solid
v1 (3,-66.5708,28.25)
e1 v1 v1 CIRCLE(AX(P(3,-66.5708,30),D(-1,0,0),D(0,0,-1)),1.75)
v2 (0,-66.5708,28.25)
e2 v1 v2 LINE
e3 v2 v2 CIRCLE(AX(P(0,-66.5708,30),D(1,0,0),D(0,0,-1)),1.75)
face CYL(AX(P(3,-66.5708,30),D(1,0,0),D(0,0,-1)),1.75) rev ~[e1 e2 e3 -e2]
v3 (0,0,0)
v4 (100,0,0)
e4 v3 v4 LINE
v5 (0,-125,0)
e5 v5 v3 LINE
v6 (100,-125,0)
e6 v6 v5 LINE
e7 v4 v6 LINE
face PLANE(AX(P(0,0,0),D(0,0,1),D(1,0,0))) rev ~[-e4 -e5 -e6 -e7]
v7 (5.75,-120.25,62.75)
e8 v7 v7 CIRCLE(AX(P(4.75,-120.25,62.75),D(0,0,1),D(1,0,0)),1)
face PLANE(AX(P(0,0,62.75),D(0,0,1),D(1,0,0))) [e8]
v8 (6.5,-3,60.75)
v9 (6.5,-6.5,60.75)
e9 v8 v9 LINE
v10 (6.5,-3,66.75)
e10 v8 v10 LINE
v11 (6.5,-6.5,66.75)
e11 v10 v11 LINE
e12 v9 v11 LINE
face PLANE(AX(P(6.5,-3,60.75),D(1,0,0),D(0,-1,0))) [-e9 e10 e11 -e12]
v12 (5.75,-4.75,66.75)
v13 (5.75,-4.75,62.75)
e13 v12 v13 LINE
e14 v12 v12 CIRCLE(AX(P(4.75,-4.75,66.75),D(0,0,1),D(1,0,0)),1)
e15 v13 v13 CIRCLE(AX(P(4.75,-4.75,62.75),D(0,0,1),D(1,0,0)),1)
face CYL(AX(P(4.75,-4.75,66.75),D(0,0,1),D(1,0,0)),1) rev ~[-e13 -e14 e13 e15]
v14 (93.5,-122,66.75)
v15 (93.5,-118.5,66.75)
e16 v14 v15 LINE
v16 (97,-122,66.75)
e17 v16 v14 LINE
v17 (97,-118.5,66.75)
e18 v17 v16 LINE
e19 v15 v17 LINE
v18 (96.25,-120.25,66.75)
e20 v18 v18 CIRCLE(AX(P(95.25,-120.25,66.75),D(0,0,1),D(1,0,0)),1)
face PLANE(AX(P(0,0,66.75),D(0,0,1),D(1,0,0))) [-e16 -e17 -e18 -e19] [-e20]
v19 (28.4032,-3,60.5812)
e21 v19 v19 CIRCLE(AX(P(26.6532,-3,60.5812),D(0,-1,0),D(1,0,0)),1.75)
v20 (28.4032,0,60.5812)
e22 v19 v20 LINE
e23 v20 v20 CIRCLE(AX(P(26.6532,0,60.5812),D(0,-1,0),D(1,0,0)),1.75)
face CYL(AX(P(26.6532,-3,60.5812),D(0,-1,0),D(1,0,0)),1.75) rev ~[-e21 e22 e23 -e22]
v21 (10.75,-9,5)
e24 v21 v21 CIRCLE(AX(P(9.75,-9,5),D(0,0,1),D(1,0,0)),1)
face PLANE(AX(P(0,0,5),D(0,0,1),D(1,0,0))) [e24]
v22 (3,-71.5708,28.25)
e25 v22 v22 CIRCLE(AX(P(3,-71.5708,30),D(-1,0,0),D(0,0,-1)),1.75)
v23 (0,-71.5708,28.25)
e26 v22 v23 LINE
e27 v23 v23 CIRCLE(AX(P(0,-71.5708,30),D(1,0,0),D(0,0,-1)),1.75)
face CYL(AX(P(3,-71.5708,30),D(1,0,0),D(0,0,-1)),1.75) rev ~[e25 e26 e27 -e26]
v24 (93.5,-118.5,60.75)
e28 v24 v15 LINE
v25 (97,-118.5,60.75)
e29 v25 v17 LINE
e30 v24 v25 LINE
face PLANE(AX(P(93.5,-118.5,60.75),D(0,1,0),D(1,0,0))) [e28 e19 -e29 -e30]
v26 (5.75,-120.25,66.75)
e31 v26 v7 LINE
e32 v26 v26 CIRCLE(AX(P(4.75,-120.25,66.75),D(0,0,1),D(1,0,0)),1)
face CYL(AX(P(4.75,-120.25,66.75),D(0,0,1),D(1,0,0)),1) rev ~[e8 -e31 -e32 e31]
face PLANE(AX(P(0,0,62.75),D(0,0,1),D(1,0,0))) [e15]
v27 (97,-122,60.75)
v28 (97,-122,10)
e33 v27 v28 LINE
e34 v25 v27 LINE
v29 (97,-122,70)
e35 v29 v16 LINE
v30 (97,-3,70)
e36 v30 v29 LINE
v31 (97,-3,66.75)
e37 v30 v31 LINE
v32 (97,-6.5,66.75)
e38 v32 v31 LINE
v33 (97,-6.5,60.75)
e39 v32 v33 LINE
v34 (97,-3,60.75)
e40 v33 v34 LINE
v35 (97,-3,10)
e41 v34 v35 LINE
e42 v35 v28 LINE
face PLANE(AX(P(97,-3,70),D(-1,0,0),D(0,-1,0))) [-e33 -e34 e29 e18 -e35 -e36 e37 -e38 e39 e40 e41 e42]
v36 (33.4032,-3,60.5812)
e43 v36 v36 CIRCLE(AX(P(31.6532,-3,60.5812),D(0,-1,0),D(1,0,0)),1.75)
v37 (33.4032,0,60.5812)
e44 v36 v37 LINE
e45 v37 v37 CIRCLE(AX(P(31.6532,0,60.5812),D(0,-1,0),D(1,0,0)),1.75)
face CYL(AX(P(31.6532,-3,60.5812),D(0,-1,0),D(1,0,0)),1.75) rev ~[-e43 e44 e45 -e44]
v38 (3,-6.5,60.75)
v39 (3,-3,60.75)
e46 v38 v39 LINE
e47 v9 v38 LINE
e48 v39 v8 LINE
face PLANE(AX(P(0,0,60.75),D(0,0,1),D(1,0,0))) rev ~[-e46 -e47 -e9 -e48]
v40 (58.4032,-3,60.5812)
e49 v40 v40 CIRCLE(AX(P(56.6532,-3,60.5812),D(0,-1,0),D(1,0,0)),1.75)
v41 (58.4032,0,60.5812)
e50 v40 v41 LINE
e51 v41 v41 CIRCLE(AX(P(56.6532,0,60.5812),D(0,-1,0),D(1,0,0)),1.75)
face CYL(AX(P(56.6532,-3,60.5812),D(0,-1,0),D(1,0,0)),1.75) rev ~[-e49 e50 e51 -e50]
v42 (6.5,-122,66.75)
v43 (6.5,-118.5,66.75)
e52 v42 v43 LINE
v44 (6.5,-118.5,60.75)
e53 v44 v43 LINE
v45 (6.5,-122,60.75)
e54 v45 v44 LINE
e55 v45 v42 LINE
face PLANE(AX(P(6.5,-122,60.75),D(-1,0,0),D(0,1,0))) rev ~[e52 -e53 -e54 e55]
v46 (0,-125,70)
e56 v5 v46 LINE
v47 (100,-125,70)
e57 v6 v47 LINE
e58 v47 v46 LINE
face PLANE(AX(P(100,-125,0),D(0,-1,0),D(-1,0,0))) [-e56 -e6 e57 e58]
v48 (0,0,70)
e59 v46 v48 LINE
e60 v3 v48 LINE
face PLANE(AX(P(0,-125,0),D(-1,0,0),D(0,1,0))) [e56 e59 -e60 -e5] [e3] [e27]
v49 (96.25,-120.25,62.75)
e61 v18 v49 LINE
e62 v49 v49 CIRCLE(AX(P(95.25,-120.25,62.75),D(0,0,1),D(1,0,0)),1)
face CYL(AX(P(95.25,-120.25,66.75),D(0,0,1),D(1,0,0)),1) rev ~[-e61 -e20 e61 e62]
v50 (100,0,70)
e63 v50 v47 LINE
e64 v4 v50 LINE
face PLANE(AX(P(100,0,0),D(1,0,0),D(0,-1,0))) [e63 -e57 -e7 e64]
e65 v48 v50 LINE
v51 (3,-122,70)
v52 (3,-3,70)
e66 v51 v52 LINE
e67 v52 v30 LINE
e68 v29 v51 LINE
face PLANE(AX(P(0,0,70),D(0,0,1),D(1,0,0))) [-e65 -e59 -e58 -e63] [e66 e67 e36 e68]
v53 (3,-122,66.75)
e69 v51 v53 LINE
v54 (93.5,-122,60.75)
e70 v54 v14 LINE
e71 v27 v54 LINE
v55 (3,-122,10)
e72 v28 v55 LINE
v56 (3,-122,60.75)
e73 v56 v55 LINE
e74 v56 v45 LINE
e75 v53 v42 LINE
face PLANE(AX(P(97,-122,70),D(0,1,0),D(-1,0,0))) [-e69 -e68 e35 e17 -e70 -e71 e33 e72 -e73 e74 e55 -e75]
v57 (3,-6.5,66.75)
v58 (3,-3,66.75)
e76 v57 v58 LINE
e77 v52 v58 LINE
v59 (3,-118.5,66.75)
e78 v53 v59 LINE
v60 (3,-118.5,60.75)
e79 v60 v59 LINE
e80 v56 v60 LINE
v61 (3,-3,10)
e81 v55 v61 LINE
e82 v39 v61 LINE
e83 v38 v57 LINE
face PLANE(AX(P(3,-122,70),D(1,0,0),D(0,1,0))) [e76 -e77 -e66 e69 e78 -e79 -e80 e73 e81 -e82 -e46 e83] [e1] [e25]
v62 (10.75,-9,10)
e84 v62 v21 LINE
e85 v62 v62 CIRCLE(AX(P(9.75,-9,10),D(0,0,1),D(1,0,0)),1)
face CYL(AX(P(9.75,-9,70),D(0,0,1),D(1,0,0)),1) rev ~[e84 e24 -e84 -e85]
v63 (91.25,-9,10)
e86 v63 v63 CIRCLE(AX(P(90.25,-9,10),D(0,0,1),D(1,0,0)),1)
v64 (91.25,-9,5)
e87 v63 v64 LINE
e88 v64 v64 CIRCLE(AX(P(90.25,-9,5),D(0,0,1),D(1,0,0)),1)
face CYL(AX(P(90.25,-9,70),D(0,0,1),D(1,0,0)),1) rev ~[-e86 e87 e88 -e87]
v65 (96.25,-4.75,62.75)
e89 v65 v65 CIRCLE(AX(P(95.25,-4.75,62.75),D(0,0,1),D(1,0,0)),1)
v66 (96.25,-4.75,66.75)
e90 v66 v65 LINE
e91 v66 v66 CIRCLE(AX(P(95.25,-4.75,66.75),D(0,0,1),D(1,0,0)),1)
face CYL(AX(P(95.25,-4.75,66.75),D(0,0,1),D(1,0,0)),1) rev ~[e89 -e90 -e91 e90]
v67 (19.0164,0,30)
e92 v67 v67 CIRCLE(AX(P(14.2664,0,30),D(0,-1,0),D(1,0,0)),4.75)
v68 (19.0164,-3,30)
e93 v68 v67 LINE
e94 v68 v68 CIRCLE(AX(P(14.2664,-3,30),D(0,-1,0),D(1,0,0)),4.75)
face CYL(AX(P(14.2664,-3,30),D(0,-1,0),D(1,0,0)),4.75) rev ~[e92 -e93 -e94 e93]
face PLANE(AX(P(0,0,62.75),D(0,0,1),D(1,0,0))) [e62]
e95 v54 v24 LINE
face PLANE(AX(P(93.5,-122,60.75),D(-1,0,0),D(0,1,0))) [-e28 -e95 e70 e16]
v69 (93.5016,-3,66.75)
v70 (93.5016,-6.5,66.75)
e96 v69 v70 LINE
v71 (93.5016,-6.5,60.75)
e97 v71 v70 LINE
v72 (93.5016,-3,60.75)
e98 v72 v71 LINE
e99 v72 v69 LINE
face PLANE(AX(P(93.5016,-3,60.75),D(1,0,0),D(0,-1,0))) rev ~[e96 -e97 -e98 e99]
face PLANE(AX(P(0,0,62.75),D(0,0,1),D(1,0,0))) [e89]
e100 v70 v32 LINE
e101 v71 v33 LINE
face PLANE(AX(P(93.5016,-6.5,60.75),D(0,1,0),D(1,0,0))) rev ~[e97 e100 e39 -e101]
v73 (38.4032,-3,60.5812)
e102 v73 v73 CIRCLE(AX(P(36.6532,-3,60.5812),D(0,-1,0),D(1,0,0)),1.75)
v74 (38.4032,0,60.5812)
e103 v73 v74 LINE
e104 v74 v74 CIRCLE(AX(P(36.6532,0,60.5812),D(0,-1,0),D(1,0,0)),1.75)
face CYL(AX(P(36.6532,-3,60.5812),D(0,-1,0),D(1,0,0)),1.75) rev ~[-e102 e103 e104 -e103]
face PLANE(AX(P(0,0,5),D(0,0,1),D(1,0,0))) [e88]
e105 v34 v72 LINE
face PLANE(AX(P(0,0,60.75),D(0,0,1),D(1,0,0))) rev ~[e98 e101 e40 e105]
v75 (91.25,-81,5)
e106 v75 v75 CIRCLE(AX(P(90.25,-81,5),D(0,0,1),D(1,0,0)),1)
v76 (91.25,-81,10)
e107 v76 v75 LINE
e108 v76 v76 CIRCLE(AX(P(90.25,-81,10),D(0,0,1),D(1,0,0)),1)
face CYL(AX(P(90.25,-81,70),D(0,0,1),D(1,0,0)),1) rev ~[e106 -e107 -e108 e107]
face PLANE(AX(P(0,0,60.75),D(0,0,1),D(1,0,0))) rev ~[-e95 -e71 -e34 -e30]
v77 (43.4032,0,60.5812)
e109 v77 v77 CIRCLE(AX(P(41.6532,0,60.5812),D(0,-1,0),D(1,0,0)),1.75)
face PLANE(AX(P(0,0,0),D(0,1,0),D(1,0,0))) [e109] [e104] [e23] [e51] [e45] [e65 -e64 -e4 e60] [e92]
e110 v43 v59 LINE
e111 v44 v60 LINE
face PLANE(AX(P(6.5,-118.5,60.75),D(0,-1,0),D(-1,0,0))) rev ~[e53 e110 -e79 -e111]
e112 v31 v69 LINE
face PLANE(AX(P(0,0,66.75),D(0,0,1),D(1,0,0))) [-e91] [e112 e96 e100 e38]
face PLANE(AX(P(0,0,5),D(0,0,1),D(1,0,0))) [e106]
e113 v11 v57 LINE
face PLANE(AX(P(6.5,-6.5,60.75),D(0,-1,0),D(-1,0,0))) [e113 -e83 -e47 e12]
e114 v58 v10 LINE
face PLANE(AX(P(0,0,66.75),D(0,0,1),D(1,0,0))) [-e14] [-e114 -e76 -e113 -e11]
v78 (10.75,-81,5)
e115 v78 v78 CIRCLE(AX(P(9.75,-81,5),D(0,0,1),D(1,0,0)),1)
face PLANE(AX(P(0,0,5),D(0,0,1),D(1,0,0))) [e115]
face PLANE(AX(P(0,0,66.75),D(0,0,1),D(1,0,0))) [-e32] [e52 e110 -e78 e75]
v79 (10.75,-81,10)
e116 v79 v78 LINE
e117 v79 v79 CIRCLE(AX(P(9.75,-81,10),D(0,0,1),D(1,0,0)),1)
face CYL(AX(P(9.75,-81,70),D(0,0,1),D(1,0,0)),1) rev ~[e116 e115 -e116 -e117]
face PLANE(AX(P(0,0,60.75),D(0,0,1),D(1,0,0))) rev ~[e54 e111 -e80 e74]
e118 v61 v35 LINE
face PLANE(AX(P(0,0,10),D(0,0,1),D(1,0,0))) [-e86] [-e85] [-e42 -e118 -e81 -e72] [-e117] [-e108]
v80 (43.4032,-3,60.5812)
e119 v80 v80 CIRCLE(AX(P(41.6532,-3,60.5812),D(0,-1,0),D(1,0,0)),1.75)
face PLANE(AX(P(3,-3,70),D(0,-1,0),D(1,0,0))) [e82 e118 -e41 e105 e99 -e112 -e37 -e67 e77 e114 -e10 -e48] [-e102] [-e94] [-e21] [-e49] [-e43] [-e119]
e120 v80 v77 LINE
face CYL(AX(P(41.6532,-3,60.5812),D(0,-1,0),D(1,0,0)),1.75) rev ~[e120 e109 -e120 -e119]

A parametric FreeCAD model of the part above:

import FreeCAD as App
import Part
import Sketcher


def add_polygon(sketch, points):
    """Adds a closed chain of lines whose ends are joined by coincident constraints."""
    first, n = sketch.GeometryCount, len(points)
    for a, b in zip(points, points[1:] + points[:1]):
        sketch.addGeometry(Part.LineSegment(App.Vector(*a, 0), App.Vector(*b, 0)), False)
    for i in range(n):
        sketch.addConstraint(Sketcher.Constraint("Coincident", first + i, 2, first + (i + 1) % n, 1))

doc = App.newDocument("Part")
body = doc.addObject("PartDesign::Body", "Body")

sketch1 = body.newObject("Sketcher::SketchObject", "Sketch")
sketch1.AttachmentSupport = (doc.getObject("XY_Plane"), [""])
sketch1.MapMode = "FlatFace"
add_polygon(sketch1, [(100, 0), (0, 0), (0, -125), (100, -125)])
sketch1.addConstraint(Sketcher.Constraint("Horizontal", 0))
sketch1.addConstraint(Sketcher.Constraint("Vertical", 1))
sketch1.addConstraint(Sketcher.Constraint("Horizontal", 2))
sketch1.addConstraint(Sketcher.Constraint("Vertical", 3))
sketch1.addConstraint(Sketcher.Constraint("Coincident", 0, 2, -1, 1))
sketch1.addConstraint(Sketcher.Constraint("DistanceX", 0, 2, 0, 1, 100.0))
sketch1.addConstraint(Sketcher.Constraint("DistanceY", 1, 2, 1, 1, 125.0))
pad1 = body.newObject("PartDesign::Pad", "Pad")
pad1.Profile = sketch1
pad1.Length = 70

sketch2 = body.newObject("Sketcher::SketchObject", "Sketch001")
sketch2.AttachmentSupport = (doc.getObject("XY_Plane"), [""])
sketch2.MapMode = "FlatFace"
sketch2.AttachmentOffset = App.Placement(App.Vector(0, 0, 70), App.Rotation())
add_polygon(sketch2, [(3, -122), (97, -122), (97, -3), (3, -3)])
sketch2.addConstraint(Sketcher.Constraint("Horizontal", 0))
sketch2.addConstraint(Sketcher.Constraint("Vertical", 1))
sketch2.addConstraint(Sketcher.Constraint("Horizontal", 2))
sketch2.addConstraint(Sketcher.Constraint("Vertical", 3))
sketch2.addConstraint(Sketcher.Constraint("DistanceY", 1, 2, -1, 1, 3.0))
sketch2.addConstraint(Sketcher.Constraint("DistanceX", -1, 1, 2, 2, 3.0))
sketch2.addConstraint(Sketcher.Constraint("DistanceX", 0, 1, 0, 2, 94.0))
sketch2.addConstraint(Sketcher.Constraint("DistanceY", 1, 1, 1, 2, 119.0))
pocket1 = body.newObject("PartDesign::Pocket", "Pocket")
pocket1.Profile = sketch2
pocket1.Length = 60

sketch3 = body.newObject("Sketcher::SketchObject", "Sketch002")
sketch3.AttachmentSupport = (doc.getObject("XY_Plane"), [""])
sketch3.MapMode = "FlatFace"
sketch3.AttachmentOffset = App.Placement(App.Vector(0, 0, 70), App.Rotation())
sketch3.addGeometry(Part.Circle(App.Vector(9.75, -9, 0), App.Vector(0, 0, 1), 1), False)
sketch3.addGeometry(Part.Circle(App.Vector(90.25, -9, 0), App.Vector(0, 0, 1), 1), False)
sketch3.addGeometry(Part.Circle(App.Vector(90.25, -81, 0), App.Vector(0, 0, 1), 1), False)
sketch3.addGeometry(Part.Circle(App.Vector(9.75, -81, 0), App.Vector(0, 0, 1), 1), False)
sketch3.addConstraint(Sketcher.Constraint("Equal", 0, 1))
sketch3.addConstraint(Sketcher.Constraint("Equal", 1, 2))
sketch3.addConstraint(Sketcher.Constraint("Equal", 2, 3))
sketch3.addConstraint(Sketcher.Constraint("Horizontal", 0, 3, 1, 3))
sketch3.addConstraint(Sketcher.Constraint("Horizontal", 2, 3, 3, 3))
sketch3.addConstraint(Sketcher.Constraint("Vertical", 1, 3, 2, 3))
sketch3.addConstraint(Sketcher.Constraint("Vertical", 0, 3, 3, 3))
sketch3.addConstraint(Sketcher.Constraint("Diameter", 0, 2.0))
sketch3.addConstraint(Sketcher.Constraint("DistanceY", 0, 3, -1, 1, 9.0))
sketch3.addConstraint(Sketcher.Constraint("DistanceY", 2, 3, -1, 1, 81.0))
sketch3.addConstraint(Sketcher.Constraint("DistanceX", 0, 3, 1, 3, 80.5))
sketch3.addConstraint(Sketcher.Constraint("DistanceX", -1, 1, 0, 3, 9.75))
pocket2 = body.newObject("PartDesign::Pocket", "Pocket001")
pocket2.Profile = sketch3
pocket2.Length = 65

sketch4 = body.newObject("Sketcher::SketchObject", "Sketch003")
sketch4.AttachmentSupport = (doc.getObject("XY_Plane"), [""])
sketch4.MapMode = "FlatFace"
sketch4.AttachmentOffset = App.Placement(App.Vector(0, 0, 60.75), App.Rotation())
add_polygon(sketch4, [(6.5, -118.5), (3, -118.5), (3, -122), (6.5, -122)])
add_polygon(sketch4, [(6.5, -3), (3, -3), (3, -6.5), (6.5, -6.5)])
add_polygon(sketch4, [(97.0016, -6.5), (97.0016, -3), (93.5016, -3), (93.5016, -6.5)])
add_polygon(sketch4, [(97, -122), (97, -118.5), (93.5, -118.5), (93.5, -122)])
sketch4.addConstraint(Sketcher.Constraint("Horizontal", 0))
sketch4.addConstraint(Sketcher.Constraint("Vertical", 1))
sketch4.addConstraint(Sketcher.Constraint("Horizontal", 2))
sketch4.addConstraint(Sketcher.Constraint("Vertical", 3))
sketch4.addConstraint(Sketcher.Constraint("Horizontal", 4))
sketch4.addConstraint(Sketcher.Constraint("Vertical", 5))
sketch4.addConstraint(Sketcher.Constraint("Horizontal", 6))
sketch4.addConstraint(Sketcher.Constraint("Vertical", 7))
sketch4.addConstraint(Sketcher.Constraint("Vertical", 8))
sketch4.addConstraint(Sketcher.Constraint("Horizontal", 9))
sketch4.addConstraint(Sketcher.Constraint("Vertical", 10))
sketch4.addConstraint(Sketcher.Constraint("Horizontal", 11))
sketch4.addConstraint(Sketcher.Constraint("Vertical", 12))
sketch4.addConstraint(Sketcher.Constraint("Horizontal", 13))
sketch4.addConstraint(Sketcher.Constraint("Vertical", 14))
sketch4.addConstraint(Sketcher.Constraint("Horizontal", 15))
sketch4.addConstraint(Sketcher.Constraint("Horizontal", 7, 2, 8, 2))
sketch4.addConstraint(Sketcher.Constraint("Horizontal", 6, 2, 10, 2))
sketch4.addConstraint(Sketcher.Constraint("Horizontal", 3, 2, 12, 2))
sketch4.addConstraint(Sketcher.Constraint("Horizontal", 2, 2, 14, 2))
sketch4.addConstraint(Sketcher.Constraint("Vertical", 1, 2, 4, 2))
sketch4.addConstraint(Sketcher.Constraint("Vertical", 3, 2, 6, 2))
sketch4.addConstraint(Sketcher.Constraint("Equal", 6, 9))
sketch4.addConstraint(Sketcher.Constraint("Equal", 11, 13))
sketch4.addConstraint(Sketcher.Constraint("Equal", 15, 1))
sketch4.addConstraint(Sketcher.Constraint("Equal", 3, 5))
sketch4.addConstraint(Sketcher.Constraint("DistanceX", 0, 2, 0, 1, 3.5))
sketch4.addConstraint(Sketcher.Constraint("DistanceX", -1, 1, 0, 2, 3.0))
sketch4.addConstraint(Sketcher.Constraint("DistanceY", 1, 2, -1, 1, 122.0))
sketch4.addConstraint(Sketcher.Constraint("DistanceY", 4, 2, -1, 1, 3.0))
sketch4.addConstraint(Sketcher.Constraint("DistanceX", -1, 1, 12, 2, 97.0))
sketch4.addConstraint(Sketcher.Constraint("DistanceX", -1, 1, 8, 2, 97.0016))
pad2 = body.newObject("PartDesign::Pad", "Pad001")
pad2.Profile = sketch4
pad2.Length = 6

sketch5 = body.newObject("Sketcher::SketchObject", "Sketch004")
sketch5.AttachmentSupport = (doc.getObject("XY_Plane"), [""])
sketch5.MapMode = "FlatFace"
sketch5.AttachmentOffset = App.Placement(App.Vector(0, 0, 66.75), App.Rotation())
sketch5.addGeometry(Part.Circle(App.Vector(4.75, -120.25, 0), App.Vector(0, 0, 1), 1), False)
sketch5.addGeometry(Part.Circle(App.Vector(95.25, -120.25, 0), App.Vector(0, 0, 1), 1), False)
sketch5.addGeometry(Part.Circle(App.Vector(95.25, -4.75, 0), App.Vector(0, 0, 1), 1), False)
sketch5.addGeometry(Part.Circle(App.Vector(4.75, -4.75, 0), App.Vector(0, 0, 1), 1), False)
sketch5.addConstraint(Sketcher.Constraint("Equal", 0, 1))
sketch5.addConstraint(Sketcher.Constraint("Equal", 1, 2))
sketch5.addConstraint(Sketcher.Constraint("Equal", 2, 3))
sketch5.addConstraint(Sketcher.Constraint("Horizontal", 0, 3, 1, 3))
sketch5.addConstraint(Sketcher.Constraint("Horizontal", 2, 3, 3, 3))
sketch5.addConstraint(Sketcher.Constraint("Vertical", 1, 3, 2, 3))
sketch5.addConstraint(Sketcher.Constraint("Vertical", 0, 3, 3, 3))
sketch5.addConstraint(Sketcher.Constraint("Diameter", 0, 2.0))
sketch5.addConstraint(Sketcher.Constraint("DistanceX", 0, 3, 1, 3, 90.5))
sketch5.addConstraint(Sketcher.Constraint("DistanceY", 1, 3, 2, 3, 115.5))
sketch5.addConstraint(Sketcher.Constraint("DistanceX", -1, 1, 0, 3, 4.75))
sketch5.addConstraint(Sketcher.Constraint("DistanceY", 0, 3, -1, 1, 120.25))
pocket3 = body.newObject("PartDesign::Pocket", "Pocket002")
pocket3.Profile = sketch5
pocket3.Length = 4

sketch6 = body.newObject("Sketcher::SketchObject", "Sketch005")
sketch6.AttachmentSupport = (doc.getObject("YZ_Plane"), [""])
sketch6.MapMode = "FlatFace"
sketch6.AttachmentOffset = App.Placement(App.Vector(0, 0, 3), App.Rotation())
sketch6.addGeometry(Part.Circle(App.Vector(-71.5708, 30, 0), App.Vector(0, 0, 1), 1.75), False)
sketch6.addGeometry(Part.Circle(App.Vector(-66.5708, 30, 0), App.Vector(0, 0, 1), 1.75), False)
sketch6.addConstraint(Sketcher.Constraint("Equal", 0, 1))
sketch6.addConstraint(Sketcher.Constraint("Horizontal", 0, 3, 1, 3))
sketch6.addConstraint(Sketcher.Constraint("Diameter", 0, 3.5))
sketch6.addConstraint(Sketcher.Constraint("DistanceX", 0, 3, 1, 3, 5.0))
sketch6.addConstraint(Sketcher.Constraint("DistanceY", -1, 1, 0, 3, 30.0))
sketch6.addConstraint(Sketcher.Constraint("DistanceX", 0, 3, -1, 1, 71.5708))
pocket4 = body.newObject("PartDesign::Pocket", "Pocket003")
pocket4.Profile = sketch6
pocket4.Length = 10

sketch7 = body.newObject("Sketcher::SketchObject", "Sketch006")
sketch7.AttachmentSupport = (doc.getObject("XZ_Plane"), [""])
sketch7.MapMode = "FlatFace"
sketch7.AttachmentOffset = App.Placement(App.Vector(0, 0, 3), App.Rotation())
sketch7.addGeometry(Part.Circle(App.Vector(26.6532, 60.5812, 0), App.Vector(0, 0, 1), 1.75), False)
sketch7.addGeometry(Part.Circle(App.Vector(31.6532, 60.5812, 0), App.Vector(0, 0, 1), 1.75), False)
sketch7.addGeometry(Part.Circle(App.Vector(36.6532, 60.5812, 0), App.Vector(0, 0, 1), 1.75), False)
sketch7.addGeometry(Part.Circle(App.Vector(41.6532, 60.5812, 0), App.Vector(0, 0, 1), 1.75), False)
sketch7.addGeometry(Part.Circle(App.Vector(56.6532, 60.5812, 0), App.Vector(0, 0, 1), 1.75), False)
sketch7.addConstraint(Sketcher.Constraint("Equal", 0, 1))
sketch7.addConstraint(Sketcher.Constraint("Equal", 1, 2))
sketch7.addConstraint(Sketcher.Constraint("Equal", 2, 3))
sketch7.addConstraint(Sketcher.Constraint("Equal", 3, 4))
sketch7.addConstraint(Sketcher.Constraint("Horizontal", 0, 3, 1, 3))
sketch7.addConstraint(Sketcher.Constraint("Horizontal", 1, 3, 2, 3))
sketch7.addConstraint(Sketcher.Constraint("Horizontal", 2, 3, 3, 3))
sketch7.addConstraint(Sketcher.Constraint("Horizontal", 3, 3, 4, 3))
sketch7.addConstraint(Sketcher.Constraint("Diameter", 0, 3.5))
sketch7.addConstraint(Sketcher.Constraint("DistanceX", 0, 3, 1, 3, 5.0))
sketch7.addConstraint(Sketcher.Constraint("DistanceX", 1, 3, 2, 3, 5.0))
sketch7.addConstraint(Sketcher.Constraint("DistanceX", 2, 3, 3, 3, 5.0))
sketch7.addConstraint(Sketcher.Constraint("DistanceX", 3, 3, 4, 3, 15.0))
sketch7.addConstraint(Sketcher.Constraint("DistanceX", -1, 1, 0, 3, 26.6532))
sketch7.addConstraint(Sketcher.Constraint("DistanceY", -1, 1, 0, 3, 60.5812))
pocket5 = body.newObject("PartDesign::Pocket", "Pocket004")
pocket5.Profile = sketch7
pocket5.Length = 10

sketch8 = body.newObject("Sketcher::SketchObject", "Sketch007")
sketch8.AttachmentSupport = (doc.getObject("XZ_Plane"), [""])
sketch8.MapMode = "FlatFace"
sketch8.AttachmentOffset = App.Placement(App.Vector(0, 0, 3), App.Rotation())
sketch8.addGeometry(Part.Circle(App.Vector(14.2664, 30, 0), App.Vector(0, 0, 1), 4.75), False)
sketch8.addConstraint(Sketcher.Constraint("Diameter", 0, 9.5))
sketch8.addConstraint(Sketcher.Constraint("DistanceY", -1, 1, 0, 3, 30.0))
sketch8.addConstraint(Sketcher.Constraint("DistanceX", -1, 1, 0, 3, 14.2664))
pocket6 = body.newObject("PartDesign::Pocket", "Pocket005")
pocket6.Profile = sketch8
pocket6.Length = 10

doc.recompute()
